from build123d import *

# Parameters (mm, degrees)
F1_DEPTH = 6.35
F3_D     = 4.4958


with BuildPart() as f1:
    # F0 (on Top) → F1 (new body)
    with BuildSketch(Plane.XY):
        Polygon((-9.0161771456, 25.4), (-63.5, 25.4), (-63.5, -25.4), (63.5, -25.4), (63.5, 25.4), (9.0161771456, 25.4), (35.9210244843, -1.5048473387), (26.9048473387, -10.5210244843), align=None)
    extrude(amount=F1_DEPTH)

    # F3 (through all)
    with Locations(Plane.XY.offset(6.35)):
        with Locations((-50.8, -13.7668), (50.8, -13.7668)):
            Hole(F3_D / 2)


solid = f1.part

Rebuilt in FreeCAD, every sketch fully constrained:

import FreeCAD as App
import Part
import Sketcher
Q = App.Units.Quantity


def add_polygon(sketch, points):
    """Adds a closed chain of lines whose ends are joined by coincident constraints."""
    first, n = sketch.GeometryCount, len(points)
    for a, b in zip(points, points[1:] + points[:1]):
        sketch.addGeometry(Part.LineSegment(App.Vector(*a, 0), App.Vector(*b, 0)), False)
    for i in range(n):
        sketch.addConstraint(Sketcher.Constraint("Coincident", first + i, 2, first + (i + 1) % n, 1))

doc = App.newDocument("Part")
body = doc.addObject("PartDesign::Body", "Body")

# Sketch on XY plane
sketch1 = body.newObject("Sketcher::SketchObject", "Sketch")
sketch1.AttachmentSupport = (doc.getObject("XY_Plane"), [""])
sketch1.MapMode = "FlatFace"
add_polygon(sketch1, [(-9.016177, 25.4), (-63.5, 25.4), (-63.5, -25.4), (63.5, -25.4), (63.5, 25.4), (9.016177, 25.4), (35.921024, -1.504847), (26.904847, -10.521024)])  # lines 0-7
sketch1.addConstraint(Sketcher.Constraint("Horizontal", 0))
sketch1.addConstraint(Sketcher.Constraint("Vertical", 1))
sketch1.addConstraint(Sketcher.Constraint("Horizontal", 2))
sketch1.addConstraint(Sketcher.Constraint("Vertical", 3))
sketch1.addConstraint(Sketcher.Constraint("Horizontal", 4))
sketch1.addConstraint(Sketcher.Constraint("Symmetric", 0, 2, 2, 2, -1, 1))
sketch1.addConstraint(Sketcher.Constraint("Symmetric", 4, 2, 7, 2, -2))
sketch1.addConstraint(Sketcher.Constraint("Perpendicular", 5, 6))
sketch1.addConstraint(Sketcher.Constraint("Perpendicular", 6, 7))
sketch1.addConstraint(Sketcher.Constraint("DistanceX", 2, 1, 2, 2, Q("5 in")))
sketch1.addConstraint(Sketcher.Constraint("DistanceY", 1, 2, 1, 1, Q("2 in")))
sketch1.addConstraint(Sketcher.Constraint("Distance", 7, Q("2 in")))
sketch1.addConstraint(Sketcher.Constraint("Angle", 5, Q("-45 deg")))
sketch1.addConstraint(Sketcher.Constraint("Distance", 5, Q("1.498 in")))
pad1 = body.newObject("PartDesign::Pad", "Pad")
pad1.Profile = sketch1
pad1.Length = Q("0.25 in")

# Sketch on XY plane
sketch2 = body.newObject("Sketcher::SketchObject", "Sketch001")
sketch2.AttachmentSupport = (doc.getObject("XY_Plane"), [""])
sketch2.MapMode = "FlatFace"
sketch2.AttachmentOffset = App.Placement(App.Vector(0, 0, 0.25 * 25.4), App.Rotation())
sketch2.addGeometry(Part.Circle(App.Vector(-50.8, -13.7668, 0), App.Vector(0, 0, 1), 2.2479), False)
sketch2.addGeometry(Part.Circle(App.Vector(50.8, -13.7668, 0), App.Vector(0, 0, 1), 2.2479), False)
sketch2.addConstraint(Sketcher.Constraint("Equal", 0, 1))
sketch2.addConstraint(Sketcher.Constraint("Symmetric", 0, 3, 1, 3, -2))
sketch2.addConstraint(Sketcher.Constraint("Diameter", 0, Q("0.177 in")))
sketch2.addConstraint(Sketcher.Constraint("DistanceX", 0, 3, -1, 1, Q("2 in")))
sketch2.addConstraint(Sketcher.Constraint("DistanceY", 0, 3, -1, 1, Q("0.542 in")))
doc.recompute()
hole = body.newObject("PartDesign::Hole", "Hole")
hole.Profile = sketch2
hole.ThreadType = "None"
hole.Diameter = Q("0.177 in")
hole.DepthType = "ThroughAll"

doc.recompute()
